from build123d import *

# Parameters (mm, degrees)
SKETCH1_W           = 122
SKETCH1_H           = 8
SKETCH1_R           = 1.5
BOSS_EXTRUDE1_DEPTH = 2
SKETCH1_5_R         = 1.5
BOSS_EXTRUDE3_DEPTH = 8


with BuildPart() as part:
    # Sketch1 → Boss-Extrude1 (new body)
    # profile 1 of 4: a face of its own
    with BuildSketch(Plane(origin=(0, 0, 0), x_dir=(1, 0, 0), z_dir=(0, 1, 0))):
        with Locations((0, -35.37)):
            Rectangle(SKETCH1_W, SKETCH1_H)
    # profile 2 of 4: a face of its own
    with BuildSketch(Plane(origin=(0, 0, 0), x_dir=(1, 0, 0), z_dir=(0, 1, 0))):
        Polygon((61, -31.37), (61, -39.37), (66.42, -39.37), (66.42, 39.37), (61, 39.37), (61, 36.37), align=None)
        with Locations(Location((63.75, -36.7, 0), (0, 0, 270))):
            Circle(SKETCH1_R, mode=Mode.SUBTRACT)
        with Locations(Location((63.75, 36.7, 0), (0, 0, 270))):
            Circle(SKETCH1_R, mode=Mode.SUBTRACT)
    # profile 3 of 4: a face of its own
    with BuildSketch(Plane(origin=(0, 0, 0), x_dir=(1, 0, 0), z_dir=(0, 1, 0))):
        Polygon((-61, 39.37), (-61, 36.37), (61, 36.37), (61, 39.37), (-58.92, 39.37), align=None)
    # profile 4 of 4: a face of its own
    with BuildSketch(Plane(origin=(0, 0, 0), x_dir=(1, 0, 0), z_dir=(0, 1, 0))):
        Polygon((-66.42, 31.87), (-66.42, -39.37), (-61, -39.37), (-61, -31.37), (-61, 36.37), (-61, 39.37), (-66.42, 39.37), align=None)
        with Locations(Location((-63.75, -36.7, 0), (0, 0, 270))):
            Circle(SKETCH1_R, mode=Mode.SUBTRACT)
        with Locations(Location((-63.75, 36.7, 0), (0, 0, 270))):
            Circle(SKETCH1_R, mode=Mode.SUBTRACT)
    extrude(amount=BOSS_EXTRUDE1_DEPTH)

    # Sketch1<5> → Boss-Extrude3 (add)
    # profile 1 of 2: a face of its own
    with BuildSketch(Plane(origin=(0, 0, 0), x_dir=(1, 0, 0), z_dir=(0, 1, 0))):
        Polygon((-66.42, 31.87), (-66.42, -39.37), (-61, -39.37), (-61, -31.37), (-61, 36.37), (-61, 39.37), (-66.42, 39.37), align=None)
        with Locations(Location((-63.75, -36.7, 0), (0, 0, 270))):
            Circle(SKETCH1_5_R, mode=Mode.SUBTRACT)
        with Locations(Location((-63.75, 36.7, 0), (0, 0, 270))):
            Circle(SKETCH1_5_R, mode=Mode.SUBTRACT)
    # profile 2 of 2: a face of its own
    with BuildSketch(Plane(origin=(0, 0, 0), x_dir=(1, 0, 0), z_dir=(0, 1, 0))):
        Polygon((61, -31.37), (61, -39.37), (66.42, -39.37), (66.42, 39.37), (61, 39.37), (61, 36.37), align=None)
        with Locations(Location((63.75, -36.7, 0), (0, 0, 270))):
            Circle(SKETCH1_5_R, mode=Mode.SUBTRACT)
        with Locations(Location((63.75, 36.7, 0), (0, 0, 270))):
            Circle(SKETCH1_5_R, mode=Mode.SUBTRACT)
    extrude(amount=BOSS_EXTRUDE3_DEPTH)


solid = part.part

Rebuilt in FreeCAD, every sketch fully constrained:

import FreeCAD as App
import Part
import Sketcher

V = App.Vector
Q = App.Units.Quantity

doc = App.newDocument("Part")
body = doc.addObject("PartDesign::Body", "Body")

# Sketch on XZ plane
sketch1 = doc.addObject("Sketcher::SketchObject", "Sketch")
body.addObject(sketch1)
sketch1.AttachmentSupport = (doc.XZ_Plane, [""])
sketch1.MapMode = "FlatFace"
sketch1.addGeometry([
    Part.LineSegment(V(66.42, 39.37, 0), V(66.42, -39.37, 0)),  # 0
    Part.LineSegment(V(66.42, -39.37, 0), V(-66.42, -39.37, 0)),  # 1
    Part.LineSegment(V(-66.42, -39.37, 0), V(-66.42, 39.37, 0)),  # 2
    Part.LineSegment(V(-66.42, 39.37, 0), V(66.42, 39.37, 0)),  # 3
    Part.LineSegment(V(61, 31.37, 0), V(-61, 31.37, 0)),  # 4
    Part.LineSegment(V(-61, 31.37, 0), V(-61, -36.37, 0)),  # 5
    Part.LineSegment(V(-61, -36.37, 0), V(61, -36.37, 0)),  # 6
    Part.LineSegment(V(61, -36.37, 0), V(61, 31.37, 0)),  # 7
    Part.Circle(V(-63.75, -36.7, 0), V(0, 0, 1), 1.5),  # 8
    Part.Circle(V(-63.75, 36.7, 0), V(0, 0, 1), 1.5),  # 9
    Part.Circle(V(63.75, -36.7, 0), V(0, 0, 1), 1.5),  # 10
    Part.Circle(V(63.75, 36.7, 0), V(0, 0, 1), 1.5),  # 11
], False)
sketch1.addConstraint([
    Sketcher.Constraint("Coincident", 0, 2, 1, 1),
    Sketcher.Constraint("Coincident", 1, 2, 2, 1),
    Sketcher.Constraint("Coincident", 2, 2, 3, 1),
    Sketcher.Constraint("Coincident", 3, 2, 0, 1),
    Sketcher.Constraint("Coincident", 4, 2, 5, 1),
    Sketcher.Constraint("Coincident", 5, 2, 6, 1),
    Sketcher.Constraint("Coincident", 6, 2, 7, 1),
    Sketcher.Constraint("Coincident", 7, 2, 4, 1),
    Sketcher.Constraint("Vertical", 0),
    Sketcher.Constraint("Horizontal", 1),
    Sketcher.Constraint("Vertical", 2),
    Sketcher.Constraint("Horizontal", 3),
    Sketcher.Constraint("Horizontal", 4),
    Sketcher.Constraint("Vertical", 5),
    Sketcher.Constraint("Horizontal", 6),
    Sketcher.Constraint("Vertical", 7),
    Sketcher.Constraint("Equal", 8, 9),
    Sketcher.Constraint("Equal", 9, 10),
    Sketcher.Constraint("Equal", 10, 11),
    Sketcher.Constraint("Symmetric", 9, 3, 10, 3, -1, 1),
    Sketcher.Constraint("Symmetric", 8, 3, 11, 3, -1, 1),
    Sketcher.Constraint("Symmetric", 0, 2, 2, 2, -1, 1),
    Sketcher.Constraint("Symmetric", 8, 3, 10, 3, -2),
    Sketcher.Constraint("Diameter", 8, Q("3 mm")),
    Sketcher.Constraint("DistanceX", 4, 2, 4, 1, Q("122 mm")),
    Sketcher.Constraint("DistanceX", 4, 2, -1, 1, Q("61 mm")),
    Sketcher.Constraint("DistanceY", 4, 2, 2, 2, Q("8 mm")),
    Sketcher.Constraint("DistanceY", 1, 2, 5, 2, Q("3 mm")),
    Sketcher.Constraint("DistanceX", 1, 2, 1, 1, Q("132.84 mm")),
    Sketcher.Constraint("DistanceY", 0, 2, 0, 1, Q("78.74 mm")),
    Sketcher.Constraint("DistanceY", 8, 3, -1, 1, Q("36.7 mm")),
    Sketcher.Constraint("DistanceX", 8, 3, 10, 3, Q("127.5 mm")),
])
pad1 = doc.addObject("PartDesign::Pad", "Pad")
body.addObject(pad1)
pad1.Profile = sketch1
pad1.Length = 2
pad1.Reversed = True

# Sketch on XZ plane
sketch2 = doc.addObject("Sketcher::SketchObject", "Sketch001")
body.addObject(sketch2)
sketch2.AttachmentSupport = (doc.XZ_Plane, [""])
sketch2.MapMode = "FlatFace"
sketch2.addGeometry([
    Part.LineSegment(V(-66.42, 39.37, 0), V(-61, 39.37, 0)),  # 0
    Part.LineSegment(V(-61, 39.37, 0), V(-61, -39.37, 0)),  # 1
    Part.LineSegment(V(-61, -39.37, 0), V(-66.42, -39.37, 0)),  # 2
    Part.LineSegment(V(-66.42, -39.37, 0), V(-66.42, 39.37, 0)),  # 3
    Part.Circle(V(-63.75, 36.7, 0), V(0, 0, 1), 1.5),  # 4
    Part.Circle(V(-63.75, -36.7, 0), V(0, 0, 1), 1.5),  # 5
    Part.LineSegment(V(61, 39.37, 0), V(66.42, 39.37, 0)),  # 6
    Part.LineSegment(V(66.42, 39.37, 0), V(66.42, -39.37, 0)),  # 7
    Part.LineSegment(V(66.42, -39.37, 0), V(61, -39.37, 0)),  # 8
    Part.LineSegment(V(61, -39.37, 0), V(61, 39.37, 0)),  # 9
    Part.Circle(V(63.75, 36.7, 0), V(0, 0, 1), 1.5),  # 10
    Part.Circle(V(63.75, -36.7, 0), V(0, 0, 1), 1.5),  # 11
], False)
sketch2.addConstraint([
    Sketcher.Constraint("Coincident", 0, 2, 1, 1),
    Sketcher.Constraint("Coincident", 1, 2, 2, 1),
    Sketcher.Constraint("Coincident", 2, 2, 3, 1),
    Sketcher.Constraint("Coincident", 3, 2, 0, 1),
    Sketcher.Constraint("Coincident", 6, 2, 7, 1),
    Sketcher.Constraint("Coincident", 7, 2, 8, 1),
    Sketcher.Constraint("Coincident", 8, 2, 9, 1),
    Sketcher.Constraint("Coincident", 9, 2, 6, 1),
    Sketcher.Constraint("Horizontal", 0),
    Sketcher.Constraint("Vertical", 1),
    Sketcher.Constraint("Horizontal", 2),
    Sketcher.Constraint("Vertical", 3),
    Sketcher.Constraint("Horizontal", 6),
    Sketcher.Constraint("Vertical", 7),
    Sketcher.Constraint("Horizontal", 8),
    Sketcher.Constraint("Vertical", 9),
    Sketcher.Constraint("Equal", 4, 5),
    Sketcher.Constraint("Equal", 5, 10),
    Sketcher.Constraint("Equal", 10, 11),
    Sketcher.Constraint("Symmetric", 5, 3, 10, 3, -1, 1),
    Sketcher.Constraint("Symmetric", 4, 3, 11, 3, -1, 1),
    Sketcher.Constraint("Symmetric", 2, 2, 6, 2, -1, 1),
    Sketcher.Constraint("Symmetric", 0, 2, 8, 2, -1, 1),
    Sketcher.Constraint("Symmetric", 4, 3, 10, 3, -2),
    Sketcher.Constraint("Horizontal", 3, 2, 6, 2),
    Sketcher.Constraint("Diameter", 4, Q("3 mm")),
    Sketcher.Constraint("DistanceX", 0, 2, -1, 1, Q("61 mm")),
    Sketcher.Constraint("DistanceX", 0, 1, 0, 2, Q("5.42 mm")),
    Sketcher.Constraint("DistanceY", 1, 2, 1, 1, Q("78.74 mm")),
    Sketcher.Constraint("DistanceY", -1, 1, 4, 3, Q("36.7 mm")),
    Sketcher.Constraint("DistanceX", 4, 3, 10, 3, Q("127.5 mm")),
])
pad2 = doc.addObject("PartDesign::Pad", "Pad001")
body.addObject(pad2)
pad2.Profile = sketch2
pad2.Length = 8
pad2.Reversed = True

doc.recompute()
